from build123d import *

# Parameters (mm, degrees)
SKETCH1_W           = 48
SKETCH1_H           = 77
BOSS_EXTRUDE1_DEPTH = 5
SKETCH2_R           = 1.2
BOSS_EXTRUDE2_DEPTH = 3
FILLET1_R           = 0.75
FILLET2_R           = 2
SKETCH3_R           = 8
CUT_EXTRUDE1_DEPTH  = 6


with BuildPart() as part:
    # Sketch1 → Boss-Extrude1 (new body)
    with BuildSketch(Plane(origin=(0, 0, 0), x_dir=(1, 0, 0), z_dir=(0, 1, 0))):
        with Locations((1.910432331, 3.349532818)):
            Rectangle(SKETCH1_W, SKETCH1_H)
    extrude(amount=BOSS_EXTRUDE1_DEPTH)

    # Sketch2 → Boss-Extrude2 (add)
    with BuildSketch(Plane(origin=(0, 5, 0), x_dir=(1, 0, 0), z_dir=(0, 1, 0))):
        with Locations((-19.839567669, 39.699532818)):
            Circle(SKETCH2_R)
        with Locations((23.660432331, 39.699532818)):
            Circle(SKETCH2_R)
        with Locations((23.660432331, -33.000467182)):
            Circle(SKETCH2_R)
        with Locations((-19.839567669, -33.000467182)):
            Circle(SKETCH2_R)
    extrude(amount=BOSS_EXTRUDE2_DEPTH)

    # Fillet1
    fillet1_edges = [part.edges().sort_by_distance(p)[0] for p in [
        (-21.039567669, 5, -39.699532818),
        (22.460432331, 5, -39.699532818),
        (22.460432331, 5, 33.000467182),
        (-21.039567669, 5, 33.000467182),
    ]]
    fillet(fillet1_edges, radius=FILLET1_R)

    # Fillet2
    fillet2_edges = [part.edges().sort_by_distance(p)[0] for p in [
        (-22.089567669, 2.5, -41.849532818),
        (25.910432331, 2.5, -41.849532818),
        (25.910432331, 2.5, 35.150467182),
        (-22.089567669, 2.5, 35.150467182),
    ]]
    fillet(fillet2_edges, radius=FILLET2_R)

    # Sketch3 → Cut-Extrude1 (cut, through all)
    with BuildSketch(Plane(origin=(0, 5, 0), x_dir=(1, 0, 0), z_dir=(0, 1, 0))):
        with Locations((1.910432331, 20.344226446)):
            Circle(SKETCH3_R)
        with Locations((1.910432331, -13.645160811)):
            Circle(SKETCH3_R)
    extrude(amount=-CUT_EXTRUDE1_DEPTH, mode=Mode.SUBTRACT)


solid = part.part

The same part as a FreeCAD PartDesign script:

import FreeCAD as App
import Part
import Sketcher

V = App.Vector


def edges_at(feature, points):
    """Names of the edges that pass closest to the given points."""
    edges = feature.Shape.Edges
    near = lambda p: min(range(len(edges)), key=lambda i: edges[i].distToShape(Part.Vertex(*p))[0])
    return sorted({f"Edge{near(p) + 1}" for p in points})

doc = App.newDocument("Part")
params = doc.addObject("Spreadsheet::Sheet", "Params")
for row, (alias, value) in enumerate([
    ("sketch1_width", "48 mm"),
    ("sketch1_height", "77 mm"),
    ("pad1_length", "5 mm"),
    ("sketch2_diameter", "2.4 mm"),
    ("pad2_length", "3 mm"),
    ("fillet_radius", "0.75 mm"),
    ("fillet2_radius", "2 mm"),
    ("sketch3_diameter", "16 mm"),
], start=1):
    params.set(f"A{row}", alias)
    params.set(f"B{row}", "=" + value)
    params.setAlias(f"B{row}", alias)

body = doc.addObject("PartDesign::Body", "Body")

# Sketch on XZ plane
sketch1 = body.newObject("Sketcher::SketchObject", "Sketch")
sketch1.AttachmentSupport = (doc.getObject("XZ_Plane"), [""])
sketch1.MapMode = "FlatFace"
sketch1.addGeometry(Part.LineSegment(V(-22, -42, 0), V(-22, 35, 0)), False)
sketch1.addGeometry(Part.LineSegment(V(-22, 35, 0), V(26, 35, 0)), False)
sketch1.addGeometry(Part.LineSegment(V(26, 35, 0), V(26, -42, 0)), False)
sketch1.addGeometry(Part.LineSegment(V(26, -42, 0), V(-22, -42, 0)), False)
sketch1.addConstraint(Sketcher.Constraint("Coincident", 0, 2, 1, 1))
sketch1.addConstraint(Sketcher.Constraint("Coincident", 1, 2, 2, 1))
sketch1.addConstraint(Sketcher.Constraint("Coincident", 2, 2, 3, 1))
sketch1.addConstraint(Sketcher.Constraint("Coincident", 3, 2, 0, 1))
sketch1.addConstraint(Sketcher.Constraint("Vertical", 0))
sketch1.addConstraint(Sketcher.Constraint("Horizontal", 1))
sketch1.addConstraint(Sketcher.Constraint("Vertical", 2))
sketch1.addConstraint(Sketcher.Constraint("Horizontal", 3))
sketch1.addConstraint(Sketcher.Constraint("DistanceX", 1, 1, 1, 2, 48.0))
sketch1.addConstraint(Sketcher.Constraint("DistanceY", 0, 1, 0, 2, 77.0))
sketch1.addConstraint(Sketcher.Constraint("DistanceX", 0, 2, -1, 1, 22.089568))
sketch1.addConstraint(Sketcher.Constraint("DistanceY", -1, 1, 0, 2, 35.150467))
sketch1.setExpression("Constraints[8]", "Params.sketch1_width")
sketch1.setExpression("Constraints[9]", "Params.sketch1_height")
pad1 = body.newObject("PartDesign::Pad", "Pad")
pad1.Profile = sketch1
pad1.setExpression("Length", "Params.pad1_length")
pad1.Reversed = True

# Sketch on XZ plane
sketch2 = body.newObject("Sketcher::SketchObject", "Sketch001")
sketch2.AttachmentSupport = (doc.getObject("XZ_Plane"), [""])
sketch2.MapMode = "FlatFace"
sketch2.AttachmentOffset = App.Placement(V(0, 0, -5), App.Rotation())
sketch2.addGeometry(Part.Circle(V(-19.8, -39.7, 0), V(0, 0, 1), 1.2), False)
sketch2.addGeometry(Part.Circle(V(23.7, -39.7, 0), V(0, 0, 1), 1.2), False)
sketch2.addGeometry(Part.Circle(V(23.7, 33, 0), V(0, 0, 1), 1.2), False)
sketch2.addGeometry(Part.Circle(V(-19.8, 33, 0), V(0, 0, 1), 1.2), False)
sketch2.addConstraint(Sketcher.Constraint("Equal", 0, 1))
sketch2.addConstraint(Sketcher.Constraint("Equal", 1, 2))
sketch2.addConstraint(Sketcher.Constraint("Equal", 2, 3))
sketch2.addConstraint(Sketcher.Constraint("Horizontal", 0, 3, 1, 3))
sketch2.addConstraint(Sketcher.Constraint("Horizontal", 2, 3, 3, 3))
sketch2.addConstraint(Sketcher.Constraint("Vertical", 1, 3, 2, 3))
sketch2.addConstraint(Sketcher.Constraint("Vertical", 0, 3, 3, 3))
sketch2.addConstraint(Sketcher.Constraint("Diameter", 0, 2.4))
sketch2.addConstraint(Sketcher.Constraint("DistanceX", 0, 3, 1, 3, 43.5))
sketch2.addConstraint(Sketcher.Constraint("DistanceY", 1, 3, 2, 3, 72.7))
sketch2.addConstraint(Sketcher.Constraint("DistanceX", 0, 3, -1, 1, 19.839568))
sketch2.addConstraint(Sketcher.Constraint("DistanceY", 0, 3, -1, 1, 39.699533))
sketch2.setExpression("Constraints[7]", "Params.sketch2_diameter")
pad2 = body.newObject("PartDesign::Pad", "Pad001")
pad2.Profile = sketch2
pad2.setExpression("Length", "Params.pad2_length")
pad2.Reversed = True
doc.recompute()

fillet = body.newObject("PartDesign::Fillet", "Fillet")
fillet.Base = (pad2, edges_at(pad2, [
    (-21.04, 5, -39.7),
    (22.46, 5, -39.7),
    (22.46, 5, 33),
    (-21.04, 5, 33),
]))
fillet.setExpression("Radius", "Params.fillet_radius")
doc.recompute()

fillet2 = body.newObject("PartDesign::Fillet", "Fillet001")
fillet2.Base = (fillet, edges_at(fillet, [
    (-22.09, 2.5, -41.85),
    (25.91, 2.5, -41.85),
    (25.91, 2.5, 35.15),
    (-22.09, 2.5, 35.15),
]))
fillet2.setExpression("Radius", "Params.fillet2_radius")

# Sketch on XZ plane
sketch3 = body.newObject("Sketcher::SketchObject", "Sketch002")
sketch3.AttachmentSupport = (doc.getObject("XZ_Plane"), [""])
sketch3.MapMode = "FlatFace"
sketch3.AttachmentOffset = App.Placement(V(0, 0, -5), App.Rotation())
sketch3.addGeometry(Part.Circle(V(2, -20, 0), V(0, 0, 1), 8), False)
sketch3.addGeometry(Part.Circle(V(2, 14, 0), V(0, 0, 1), 8), False)
sketch3.addConstraint(Sketcher.Constraint("Equal", 0, 1))
sketch3.addConstraint(Sketcher.Constraint("Vertical", 0, 3, 1, 3))
sketch3.addConstraint(Sketcher.Constraint("Diameter", 0, 16.0))
sketch3.addConstraint(Sketcher.Constraint("DistanceY", -1, 1, 1, 3, 13.645161))
sketch3.addConstraint(Sketcher.Constraint("DistanceX", -1, 1, 0, 3, 1.910432))
sketch3.addConstraint(Sketcher.Constraint("DistanceY", 0, 3, -1, 1, 20.344226))
sketch3.setExpression("Constraints[2]", "Params.sketch3_diameter")
pocket1 = body.newObject("PartDesign::Pocket", "Pocket")
pocket1.Profile = sketch3
pocket1.Type = "ThroughAll"
pocket1.Reversed = True

doc.recompute()
